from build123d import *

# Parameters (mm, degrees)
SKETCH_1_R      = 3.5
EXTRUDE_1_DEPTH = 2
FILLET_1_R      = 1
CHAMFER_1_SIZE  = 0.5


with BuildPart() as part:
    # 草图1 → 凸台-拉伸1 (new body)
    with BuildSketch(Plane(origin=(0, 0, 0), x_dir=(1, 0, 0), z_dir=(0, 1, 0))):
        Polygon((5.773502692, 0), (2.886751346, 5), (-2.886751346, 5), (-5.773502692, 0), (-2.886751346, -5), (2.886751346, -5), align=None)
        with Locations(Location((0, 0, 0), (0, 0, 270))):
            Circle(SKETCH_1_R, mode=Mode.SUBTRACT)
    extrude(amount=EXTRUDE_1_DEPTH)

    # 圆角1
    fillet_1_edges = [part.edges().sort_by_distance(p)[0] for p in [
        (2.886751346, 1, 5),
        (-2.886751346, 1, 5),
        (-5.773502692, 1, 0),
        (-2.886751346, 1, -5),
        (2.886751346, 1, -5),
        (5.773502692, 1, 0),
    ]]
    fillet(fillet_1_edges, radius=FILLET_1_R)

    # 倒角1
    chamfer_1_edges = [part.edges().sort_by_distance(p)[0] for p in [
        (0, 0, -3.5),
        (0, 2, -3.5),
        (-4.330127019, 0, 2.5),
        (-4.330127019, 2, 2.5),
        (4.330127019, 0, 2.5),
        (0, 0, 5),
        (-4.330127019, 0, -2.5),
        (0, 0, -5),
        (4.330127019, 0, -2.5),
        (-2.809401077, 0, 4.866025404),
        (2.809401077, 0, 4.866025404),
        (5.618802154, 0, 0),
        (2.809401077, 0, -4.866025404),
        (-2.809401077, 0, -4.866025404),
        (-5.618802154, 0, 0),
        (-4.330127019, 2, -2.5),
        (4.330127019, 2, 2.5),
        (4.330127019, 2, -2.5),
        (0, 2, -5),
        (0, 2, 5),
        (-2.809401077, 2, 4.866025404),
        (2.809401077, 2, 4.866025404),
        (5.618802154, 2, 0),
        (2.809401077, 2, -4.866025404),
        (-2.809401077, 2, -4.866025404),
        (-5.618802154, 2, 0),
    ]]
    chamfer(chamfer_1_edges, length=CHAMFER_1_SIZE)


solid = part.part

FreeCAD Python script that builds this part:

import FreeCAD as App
import Part
import Sketcher
Q = App.Units.Quantity


def edges_at(feature, points):
    """Names of the edges that pass closest to the given points."""
    edges = feature.Shape.Edges
    near = lambda p: min(range(len(edges)), key=lambda i: edges[i].distToShape(Part.Vertex(*p))[0])
    return sorted({f"Edge{near(p) + 1}" for p in points})

doc = App.newDocument("Part")
body = doc.addObject("PartDesign::Body", "Body")

sketch1 = doc.addObject("Sketcher::SketchObject", "Sketch")
body.addObject(sketch1)
sketch1.AttachmentSupport = (doc.XZ_Plane, [""])
sketch1.MapMode = "FlatFace"
sketch1.addGeometry(Part.LineSegment(App.Vector(5.8, 0, 0), App.Vector(2.9, -5, 0)), False)
sketch1.addGeometry(Part.LineSegment(App.Vector(2.9, -5, 0), App.Vector(-2.9, -5, 0)), False)
sketch1.addGeometry(Part.LineSegment(App.Vector(-2.9, -5, 0), App.Vector(-5.8, 0, 0)), False)
sketch1.addGeometry(Part.LineSegment(App.Vector(-5.8, 0, 0), App.Vector(-2.9, 5, 0)), False)
sketch1.addGeometry(Part.LineSegment(App.Vector(-2.9, 5, 0), App.Vector(2.9, 5, 0)), False)
sketch1.addGeometry(Part.LineSegment(App.Vector(2.9, 5, 0), App.Vector(5.8, 0, 0)), False)
sketch1.addGeometry(Part.Circle(App.Vector(0, 0, 0), App.Vector(0, 0, 1), 3.5), False)
sketch1.addConstraint(Sketcher.Constraint("Coincident", 0, 2, 1, 1))
sketch1.addConstraint(Sketcher.Constraint("Coincident", 1, 2, 2, 1))
sketch1.addConstraint(Sketcher.Constraint("Coincident", 2, 2, 3, 1))
sketch1.addConstraint(Sketcher.Constraint("Coincident", 3, 2, 4, 1))
sketch1.addConstraint(Sketcher.Constraint("Coincident", 4, 2, 5, 1))
sketch1.addConstraint(Sketcher.Constraint("Coincident", 5, 2, 0, 1))
sketch1.addConstraint(Sketcher.Constraint("Horizontal", 1))
sketch1.addConstraint(Sketcher.Constraint("Horizontal", 4))
sketch1.addConstraint(Sketcher.Constraint("Coincident", 6, 3, -1, 1))
sketch1.addConstraint(Sketcher.Constraint("Symmetric", 0, 2, 3, 2, -1, 1))
sketch1.addConstraint(Sketcher.Constraint("Symmetric", 2, 2, 5, 2, -1, 1))
sketch1.addConstraint(Sketcher.Constraint("PointOnObject", 2, 2, -1))
sketch1.addConstraint(Sketcher.Constraint("Parallel", 2, 5))
sketch1.addConstraint(Sketcher.Constraint("Vertical", 1, 2, 3, 2))
sketch1.addConstraint(Sketcher.Constraint("Diameter", 6, Q("7 mm")))
sketch1.addConstraint(Sketcher.Constraint("Angle", 0, Q("-120 deg")))
sketch1.addConstraint(Sketcher.Constraint("DistanceY", 0, 2, -1, 1, Q("5 mm")))
sketch1.addConstraint(Sketcher.Constraint("DistanceX", 1, 2, 1, 1, Q("5.773503 mm")))
pad1 = doc.addObject("PartDesign::Pad", "Pad")
body.addObject(pad1)
pad1.Profile = sketch1
pad1.Length = 2
pad1.Reversed = True
doc.recompute()

fillet = doc.addObject("PartDesign::Fillet", "Fillet")
body.addObject(fillet)
fillet.Base = (pad1, edges_at(pad1, [
    (2.887, 1, 5),
    (-2.887, 1, 5),
    (-5.774, 1, 0),
    (-2.887, 1, -5),
    (2.887, 1, -5),
    (5.774, 1, 0),
]))
fillet.Radius = 1
doc.recompute()

chamfer = doc.addObject("PartDesign::Chamfer", "Chamfer")
body.addObject(chamfer)
chamfer.Base = (fillet, edges_at(fillet, [
    (0, 0, -3.5),
    (0, 2, -3.5),
    (-4.33, 0, 2.5),
    (-4.33, 2, 2.5),
    (4.33, 0, 2.5),
    (0, 0, 5),
    (-4.33, 0, -2.5),
    (0, 0, -5),
    (4.33, 0, -2.5),
    (-2.809, 0, 4.866),
    (2.809, 0, 4.866),
    (5.619, 0, 0),
    (2.809, 0, -4.866),
    (-2.809, 0, -4.866),
    (-5.619, 0, 0),
    (-4.33, 2, -2.5),
    (4.33, 2, 2.5),
    (4.33, 2, -2.5),
    (0, 2, -5),
    (0, 2, 5),
    (-2.809, 2, 4.866),
    (2.809, 2, 4.866),
    (5.619, 2, 0),
    (2.809, 2, -4.866),
    (-2.809, 2, -4.866),
    (-5.619, 2, 0),
]))
chamfer.Size = 0.5

doc.recompute()
